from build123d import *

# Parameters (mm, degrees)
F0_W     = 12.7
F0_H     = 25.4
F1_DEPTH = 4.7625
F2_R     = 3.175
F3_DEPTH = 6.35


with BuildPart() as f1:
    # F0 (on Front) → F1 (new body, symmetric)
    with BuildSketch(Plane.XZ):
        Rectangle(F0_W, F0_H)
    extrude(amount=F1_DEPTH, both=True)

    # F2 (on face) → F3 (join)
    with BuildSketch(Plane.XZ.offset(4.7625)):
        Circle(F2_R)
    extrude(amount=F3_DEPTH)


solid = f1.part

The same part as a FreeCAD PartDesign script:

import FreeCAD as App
import Part
import Sketcher
from FreeCAD import Vector
Q = App.Units.Quantity


def add_polygon(sketch, points):
    """Adds a closed chain of lines whose ends are joined by coincident constraints."""
    first, n = sketch.GeometryCount, len(points)
    for a, b in zip(points, points[1:] + points[:1]):
        sketch.addGeometry(Part.LineSegment(App.Vector(*a, 0), App.Vector(*b, 0)), False)
    for i in range(n):
        sketch.addConstraint(Sketcher.Constraint("Coincident", first + i, 2, first + (i + 1) % n, 1))

doc = App.newDocument("Part")
body = doc.addObject("PartDesign::Body", "Body")

sketch1 = doc.addObject("Sketcher::SketchObject", "Sketch")
body.addObject(sketch1)
sketch1.AttachmentSupport = (doc.XZ_Plane, [""])
sketch1.MapMode = "FlatFace"
add_polygon(sketch1, [(-6.35, 12.7), (-6.35, -12.7), (6.35, -12.7), (6.35, 12.7)])
sketch1.addConstraint([
    Sketcher.Constraint("Vertical", 0),
    Sketcher.Constraint("Horizontal", 1),
    Sketcher.Constraint("Vertical", 2),
    Sketcher.Constraint("Horizontal", 3),
    Sketcher.Constraint("Symmetric", 0, 2, 2, 2, -1, 1),
    Sketcher.Constraint("DistanceY", 0, 2, 0, 1, Q("1 in")),
    Sketcher.Constraint("DistanceX", 1, 1, 1, 2, Q("0.5 in")),
])
pad1 = doc.addObject("PartDesign::Pad", "Pad")
body.addObject(pad1)
pad1.Profile = sketch1
pad1.Length = Q("0.375 in")
pad1.Midplane = True

sketch2 = doc.addObject("Sketcher::SketchObject", "Sketch001")
body.addObject(sketch2)
sketch2.AttachmentSupport = (doc.XZ_Plane, [""])
sketch2.MapMode = "FlatFace"
sketch2.AttachmentOffset = App.Placement(Vector(0, 0, 0.1875 * 25.4), App.Rotation())
sketch2.addGeometry(Part.Circle(Vector(0, 0, 0), Vector(0, 0, 1), 3.175), False)
sketch2.addConstraint([
    Sketcher.Constraint("Coincident", 0, 3, -1, 1),
    Sketcher.Constraint("Diameter", 0, Q("0.25 in")),
])
pad2 = doc.addObject("PartDesign::Pad", "Pad001")
body.addObject(pad2)
pad2.Profile = sketch2
pad2.Length = Q("0.25 in")

doc.recompute()
